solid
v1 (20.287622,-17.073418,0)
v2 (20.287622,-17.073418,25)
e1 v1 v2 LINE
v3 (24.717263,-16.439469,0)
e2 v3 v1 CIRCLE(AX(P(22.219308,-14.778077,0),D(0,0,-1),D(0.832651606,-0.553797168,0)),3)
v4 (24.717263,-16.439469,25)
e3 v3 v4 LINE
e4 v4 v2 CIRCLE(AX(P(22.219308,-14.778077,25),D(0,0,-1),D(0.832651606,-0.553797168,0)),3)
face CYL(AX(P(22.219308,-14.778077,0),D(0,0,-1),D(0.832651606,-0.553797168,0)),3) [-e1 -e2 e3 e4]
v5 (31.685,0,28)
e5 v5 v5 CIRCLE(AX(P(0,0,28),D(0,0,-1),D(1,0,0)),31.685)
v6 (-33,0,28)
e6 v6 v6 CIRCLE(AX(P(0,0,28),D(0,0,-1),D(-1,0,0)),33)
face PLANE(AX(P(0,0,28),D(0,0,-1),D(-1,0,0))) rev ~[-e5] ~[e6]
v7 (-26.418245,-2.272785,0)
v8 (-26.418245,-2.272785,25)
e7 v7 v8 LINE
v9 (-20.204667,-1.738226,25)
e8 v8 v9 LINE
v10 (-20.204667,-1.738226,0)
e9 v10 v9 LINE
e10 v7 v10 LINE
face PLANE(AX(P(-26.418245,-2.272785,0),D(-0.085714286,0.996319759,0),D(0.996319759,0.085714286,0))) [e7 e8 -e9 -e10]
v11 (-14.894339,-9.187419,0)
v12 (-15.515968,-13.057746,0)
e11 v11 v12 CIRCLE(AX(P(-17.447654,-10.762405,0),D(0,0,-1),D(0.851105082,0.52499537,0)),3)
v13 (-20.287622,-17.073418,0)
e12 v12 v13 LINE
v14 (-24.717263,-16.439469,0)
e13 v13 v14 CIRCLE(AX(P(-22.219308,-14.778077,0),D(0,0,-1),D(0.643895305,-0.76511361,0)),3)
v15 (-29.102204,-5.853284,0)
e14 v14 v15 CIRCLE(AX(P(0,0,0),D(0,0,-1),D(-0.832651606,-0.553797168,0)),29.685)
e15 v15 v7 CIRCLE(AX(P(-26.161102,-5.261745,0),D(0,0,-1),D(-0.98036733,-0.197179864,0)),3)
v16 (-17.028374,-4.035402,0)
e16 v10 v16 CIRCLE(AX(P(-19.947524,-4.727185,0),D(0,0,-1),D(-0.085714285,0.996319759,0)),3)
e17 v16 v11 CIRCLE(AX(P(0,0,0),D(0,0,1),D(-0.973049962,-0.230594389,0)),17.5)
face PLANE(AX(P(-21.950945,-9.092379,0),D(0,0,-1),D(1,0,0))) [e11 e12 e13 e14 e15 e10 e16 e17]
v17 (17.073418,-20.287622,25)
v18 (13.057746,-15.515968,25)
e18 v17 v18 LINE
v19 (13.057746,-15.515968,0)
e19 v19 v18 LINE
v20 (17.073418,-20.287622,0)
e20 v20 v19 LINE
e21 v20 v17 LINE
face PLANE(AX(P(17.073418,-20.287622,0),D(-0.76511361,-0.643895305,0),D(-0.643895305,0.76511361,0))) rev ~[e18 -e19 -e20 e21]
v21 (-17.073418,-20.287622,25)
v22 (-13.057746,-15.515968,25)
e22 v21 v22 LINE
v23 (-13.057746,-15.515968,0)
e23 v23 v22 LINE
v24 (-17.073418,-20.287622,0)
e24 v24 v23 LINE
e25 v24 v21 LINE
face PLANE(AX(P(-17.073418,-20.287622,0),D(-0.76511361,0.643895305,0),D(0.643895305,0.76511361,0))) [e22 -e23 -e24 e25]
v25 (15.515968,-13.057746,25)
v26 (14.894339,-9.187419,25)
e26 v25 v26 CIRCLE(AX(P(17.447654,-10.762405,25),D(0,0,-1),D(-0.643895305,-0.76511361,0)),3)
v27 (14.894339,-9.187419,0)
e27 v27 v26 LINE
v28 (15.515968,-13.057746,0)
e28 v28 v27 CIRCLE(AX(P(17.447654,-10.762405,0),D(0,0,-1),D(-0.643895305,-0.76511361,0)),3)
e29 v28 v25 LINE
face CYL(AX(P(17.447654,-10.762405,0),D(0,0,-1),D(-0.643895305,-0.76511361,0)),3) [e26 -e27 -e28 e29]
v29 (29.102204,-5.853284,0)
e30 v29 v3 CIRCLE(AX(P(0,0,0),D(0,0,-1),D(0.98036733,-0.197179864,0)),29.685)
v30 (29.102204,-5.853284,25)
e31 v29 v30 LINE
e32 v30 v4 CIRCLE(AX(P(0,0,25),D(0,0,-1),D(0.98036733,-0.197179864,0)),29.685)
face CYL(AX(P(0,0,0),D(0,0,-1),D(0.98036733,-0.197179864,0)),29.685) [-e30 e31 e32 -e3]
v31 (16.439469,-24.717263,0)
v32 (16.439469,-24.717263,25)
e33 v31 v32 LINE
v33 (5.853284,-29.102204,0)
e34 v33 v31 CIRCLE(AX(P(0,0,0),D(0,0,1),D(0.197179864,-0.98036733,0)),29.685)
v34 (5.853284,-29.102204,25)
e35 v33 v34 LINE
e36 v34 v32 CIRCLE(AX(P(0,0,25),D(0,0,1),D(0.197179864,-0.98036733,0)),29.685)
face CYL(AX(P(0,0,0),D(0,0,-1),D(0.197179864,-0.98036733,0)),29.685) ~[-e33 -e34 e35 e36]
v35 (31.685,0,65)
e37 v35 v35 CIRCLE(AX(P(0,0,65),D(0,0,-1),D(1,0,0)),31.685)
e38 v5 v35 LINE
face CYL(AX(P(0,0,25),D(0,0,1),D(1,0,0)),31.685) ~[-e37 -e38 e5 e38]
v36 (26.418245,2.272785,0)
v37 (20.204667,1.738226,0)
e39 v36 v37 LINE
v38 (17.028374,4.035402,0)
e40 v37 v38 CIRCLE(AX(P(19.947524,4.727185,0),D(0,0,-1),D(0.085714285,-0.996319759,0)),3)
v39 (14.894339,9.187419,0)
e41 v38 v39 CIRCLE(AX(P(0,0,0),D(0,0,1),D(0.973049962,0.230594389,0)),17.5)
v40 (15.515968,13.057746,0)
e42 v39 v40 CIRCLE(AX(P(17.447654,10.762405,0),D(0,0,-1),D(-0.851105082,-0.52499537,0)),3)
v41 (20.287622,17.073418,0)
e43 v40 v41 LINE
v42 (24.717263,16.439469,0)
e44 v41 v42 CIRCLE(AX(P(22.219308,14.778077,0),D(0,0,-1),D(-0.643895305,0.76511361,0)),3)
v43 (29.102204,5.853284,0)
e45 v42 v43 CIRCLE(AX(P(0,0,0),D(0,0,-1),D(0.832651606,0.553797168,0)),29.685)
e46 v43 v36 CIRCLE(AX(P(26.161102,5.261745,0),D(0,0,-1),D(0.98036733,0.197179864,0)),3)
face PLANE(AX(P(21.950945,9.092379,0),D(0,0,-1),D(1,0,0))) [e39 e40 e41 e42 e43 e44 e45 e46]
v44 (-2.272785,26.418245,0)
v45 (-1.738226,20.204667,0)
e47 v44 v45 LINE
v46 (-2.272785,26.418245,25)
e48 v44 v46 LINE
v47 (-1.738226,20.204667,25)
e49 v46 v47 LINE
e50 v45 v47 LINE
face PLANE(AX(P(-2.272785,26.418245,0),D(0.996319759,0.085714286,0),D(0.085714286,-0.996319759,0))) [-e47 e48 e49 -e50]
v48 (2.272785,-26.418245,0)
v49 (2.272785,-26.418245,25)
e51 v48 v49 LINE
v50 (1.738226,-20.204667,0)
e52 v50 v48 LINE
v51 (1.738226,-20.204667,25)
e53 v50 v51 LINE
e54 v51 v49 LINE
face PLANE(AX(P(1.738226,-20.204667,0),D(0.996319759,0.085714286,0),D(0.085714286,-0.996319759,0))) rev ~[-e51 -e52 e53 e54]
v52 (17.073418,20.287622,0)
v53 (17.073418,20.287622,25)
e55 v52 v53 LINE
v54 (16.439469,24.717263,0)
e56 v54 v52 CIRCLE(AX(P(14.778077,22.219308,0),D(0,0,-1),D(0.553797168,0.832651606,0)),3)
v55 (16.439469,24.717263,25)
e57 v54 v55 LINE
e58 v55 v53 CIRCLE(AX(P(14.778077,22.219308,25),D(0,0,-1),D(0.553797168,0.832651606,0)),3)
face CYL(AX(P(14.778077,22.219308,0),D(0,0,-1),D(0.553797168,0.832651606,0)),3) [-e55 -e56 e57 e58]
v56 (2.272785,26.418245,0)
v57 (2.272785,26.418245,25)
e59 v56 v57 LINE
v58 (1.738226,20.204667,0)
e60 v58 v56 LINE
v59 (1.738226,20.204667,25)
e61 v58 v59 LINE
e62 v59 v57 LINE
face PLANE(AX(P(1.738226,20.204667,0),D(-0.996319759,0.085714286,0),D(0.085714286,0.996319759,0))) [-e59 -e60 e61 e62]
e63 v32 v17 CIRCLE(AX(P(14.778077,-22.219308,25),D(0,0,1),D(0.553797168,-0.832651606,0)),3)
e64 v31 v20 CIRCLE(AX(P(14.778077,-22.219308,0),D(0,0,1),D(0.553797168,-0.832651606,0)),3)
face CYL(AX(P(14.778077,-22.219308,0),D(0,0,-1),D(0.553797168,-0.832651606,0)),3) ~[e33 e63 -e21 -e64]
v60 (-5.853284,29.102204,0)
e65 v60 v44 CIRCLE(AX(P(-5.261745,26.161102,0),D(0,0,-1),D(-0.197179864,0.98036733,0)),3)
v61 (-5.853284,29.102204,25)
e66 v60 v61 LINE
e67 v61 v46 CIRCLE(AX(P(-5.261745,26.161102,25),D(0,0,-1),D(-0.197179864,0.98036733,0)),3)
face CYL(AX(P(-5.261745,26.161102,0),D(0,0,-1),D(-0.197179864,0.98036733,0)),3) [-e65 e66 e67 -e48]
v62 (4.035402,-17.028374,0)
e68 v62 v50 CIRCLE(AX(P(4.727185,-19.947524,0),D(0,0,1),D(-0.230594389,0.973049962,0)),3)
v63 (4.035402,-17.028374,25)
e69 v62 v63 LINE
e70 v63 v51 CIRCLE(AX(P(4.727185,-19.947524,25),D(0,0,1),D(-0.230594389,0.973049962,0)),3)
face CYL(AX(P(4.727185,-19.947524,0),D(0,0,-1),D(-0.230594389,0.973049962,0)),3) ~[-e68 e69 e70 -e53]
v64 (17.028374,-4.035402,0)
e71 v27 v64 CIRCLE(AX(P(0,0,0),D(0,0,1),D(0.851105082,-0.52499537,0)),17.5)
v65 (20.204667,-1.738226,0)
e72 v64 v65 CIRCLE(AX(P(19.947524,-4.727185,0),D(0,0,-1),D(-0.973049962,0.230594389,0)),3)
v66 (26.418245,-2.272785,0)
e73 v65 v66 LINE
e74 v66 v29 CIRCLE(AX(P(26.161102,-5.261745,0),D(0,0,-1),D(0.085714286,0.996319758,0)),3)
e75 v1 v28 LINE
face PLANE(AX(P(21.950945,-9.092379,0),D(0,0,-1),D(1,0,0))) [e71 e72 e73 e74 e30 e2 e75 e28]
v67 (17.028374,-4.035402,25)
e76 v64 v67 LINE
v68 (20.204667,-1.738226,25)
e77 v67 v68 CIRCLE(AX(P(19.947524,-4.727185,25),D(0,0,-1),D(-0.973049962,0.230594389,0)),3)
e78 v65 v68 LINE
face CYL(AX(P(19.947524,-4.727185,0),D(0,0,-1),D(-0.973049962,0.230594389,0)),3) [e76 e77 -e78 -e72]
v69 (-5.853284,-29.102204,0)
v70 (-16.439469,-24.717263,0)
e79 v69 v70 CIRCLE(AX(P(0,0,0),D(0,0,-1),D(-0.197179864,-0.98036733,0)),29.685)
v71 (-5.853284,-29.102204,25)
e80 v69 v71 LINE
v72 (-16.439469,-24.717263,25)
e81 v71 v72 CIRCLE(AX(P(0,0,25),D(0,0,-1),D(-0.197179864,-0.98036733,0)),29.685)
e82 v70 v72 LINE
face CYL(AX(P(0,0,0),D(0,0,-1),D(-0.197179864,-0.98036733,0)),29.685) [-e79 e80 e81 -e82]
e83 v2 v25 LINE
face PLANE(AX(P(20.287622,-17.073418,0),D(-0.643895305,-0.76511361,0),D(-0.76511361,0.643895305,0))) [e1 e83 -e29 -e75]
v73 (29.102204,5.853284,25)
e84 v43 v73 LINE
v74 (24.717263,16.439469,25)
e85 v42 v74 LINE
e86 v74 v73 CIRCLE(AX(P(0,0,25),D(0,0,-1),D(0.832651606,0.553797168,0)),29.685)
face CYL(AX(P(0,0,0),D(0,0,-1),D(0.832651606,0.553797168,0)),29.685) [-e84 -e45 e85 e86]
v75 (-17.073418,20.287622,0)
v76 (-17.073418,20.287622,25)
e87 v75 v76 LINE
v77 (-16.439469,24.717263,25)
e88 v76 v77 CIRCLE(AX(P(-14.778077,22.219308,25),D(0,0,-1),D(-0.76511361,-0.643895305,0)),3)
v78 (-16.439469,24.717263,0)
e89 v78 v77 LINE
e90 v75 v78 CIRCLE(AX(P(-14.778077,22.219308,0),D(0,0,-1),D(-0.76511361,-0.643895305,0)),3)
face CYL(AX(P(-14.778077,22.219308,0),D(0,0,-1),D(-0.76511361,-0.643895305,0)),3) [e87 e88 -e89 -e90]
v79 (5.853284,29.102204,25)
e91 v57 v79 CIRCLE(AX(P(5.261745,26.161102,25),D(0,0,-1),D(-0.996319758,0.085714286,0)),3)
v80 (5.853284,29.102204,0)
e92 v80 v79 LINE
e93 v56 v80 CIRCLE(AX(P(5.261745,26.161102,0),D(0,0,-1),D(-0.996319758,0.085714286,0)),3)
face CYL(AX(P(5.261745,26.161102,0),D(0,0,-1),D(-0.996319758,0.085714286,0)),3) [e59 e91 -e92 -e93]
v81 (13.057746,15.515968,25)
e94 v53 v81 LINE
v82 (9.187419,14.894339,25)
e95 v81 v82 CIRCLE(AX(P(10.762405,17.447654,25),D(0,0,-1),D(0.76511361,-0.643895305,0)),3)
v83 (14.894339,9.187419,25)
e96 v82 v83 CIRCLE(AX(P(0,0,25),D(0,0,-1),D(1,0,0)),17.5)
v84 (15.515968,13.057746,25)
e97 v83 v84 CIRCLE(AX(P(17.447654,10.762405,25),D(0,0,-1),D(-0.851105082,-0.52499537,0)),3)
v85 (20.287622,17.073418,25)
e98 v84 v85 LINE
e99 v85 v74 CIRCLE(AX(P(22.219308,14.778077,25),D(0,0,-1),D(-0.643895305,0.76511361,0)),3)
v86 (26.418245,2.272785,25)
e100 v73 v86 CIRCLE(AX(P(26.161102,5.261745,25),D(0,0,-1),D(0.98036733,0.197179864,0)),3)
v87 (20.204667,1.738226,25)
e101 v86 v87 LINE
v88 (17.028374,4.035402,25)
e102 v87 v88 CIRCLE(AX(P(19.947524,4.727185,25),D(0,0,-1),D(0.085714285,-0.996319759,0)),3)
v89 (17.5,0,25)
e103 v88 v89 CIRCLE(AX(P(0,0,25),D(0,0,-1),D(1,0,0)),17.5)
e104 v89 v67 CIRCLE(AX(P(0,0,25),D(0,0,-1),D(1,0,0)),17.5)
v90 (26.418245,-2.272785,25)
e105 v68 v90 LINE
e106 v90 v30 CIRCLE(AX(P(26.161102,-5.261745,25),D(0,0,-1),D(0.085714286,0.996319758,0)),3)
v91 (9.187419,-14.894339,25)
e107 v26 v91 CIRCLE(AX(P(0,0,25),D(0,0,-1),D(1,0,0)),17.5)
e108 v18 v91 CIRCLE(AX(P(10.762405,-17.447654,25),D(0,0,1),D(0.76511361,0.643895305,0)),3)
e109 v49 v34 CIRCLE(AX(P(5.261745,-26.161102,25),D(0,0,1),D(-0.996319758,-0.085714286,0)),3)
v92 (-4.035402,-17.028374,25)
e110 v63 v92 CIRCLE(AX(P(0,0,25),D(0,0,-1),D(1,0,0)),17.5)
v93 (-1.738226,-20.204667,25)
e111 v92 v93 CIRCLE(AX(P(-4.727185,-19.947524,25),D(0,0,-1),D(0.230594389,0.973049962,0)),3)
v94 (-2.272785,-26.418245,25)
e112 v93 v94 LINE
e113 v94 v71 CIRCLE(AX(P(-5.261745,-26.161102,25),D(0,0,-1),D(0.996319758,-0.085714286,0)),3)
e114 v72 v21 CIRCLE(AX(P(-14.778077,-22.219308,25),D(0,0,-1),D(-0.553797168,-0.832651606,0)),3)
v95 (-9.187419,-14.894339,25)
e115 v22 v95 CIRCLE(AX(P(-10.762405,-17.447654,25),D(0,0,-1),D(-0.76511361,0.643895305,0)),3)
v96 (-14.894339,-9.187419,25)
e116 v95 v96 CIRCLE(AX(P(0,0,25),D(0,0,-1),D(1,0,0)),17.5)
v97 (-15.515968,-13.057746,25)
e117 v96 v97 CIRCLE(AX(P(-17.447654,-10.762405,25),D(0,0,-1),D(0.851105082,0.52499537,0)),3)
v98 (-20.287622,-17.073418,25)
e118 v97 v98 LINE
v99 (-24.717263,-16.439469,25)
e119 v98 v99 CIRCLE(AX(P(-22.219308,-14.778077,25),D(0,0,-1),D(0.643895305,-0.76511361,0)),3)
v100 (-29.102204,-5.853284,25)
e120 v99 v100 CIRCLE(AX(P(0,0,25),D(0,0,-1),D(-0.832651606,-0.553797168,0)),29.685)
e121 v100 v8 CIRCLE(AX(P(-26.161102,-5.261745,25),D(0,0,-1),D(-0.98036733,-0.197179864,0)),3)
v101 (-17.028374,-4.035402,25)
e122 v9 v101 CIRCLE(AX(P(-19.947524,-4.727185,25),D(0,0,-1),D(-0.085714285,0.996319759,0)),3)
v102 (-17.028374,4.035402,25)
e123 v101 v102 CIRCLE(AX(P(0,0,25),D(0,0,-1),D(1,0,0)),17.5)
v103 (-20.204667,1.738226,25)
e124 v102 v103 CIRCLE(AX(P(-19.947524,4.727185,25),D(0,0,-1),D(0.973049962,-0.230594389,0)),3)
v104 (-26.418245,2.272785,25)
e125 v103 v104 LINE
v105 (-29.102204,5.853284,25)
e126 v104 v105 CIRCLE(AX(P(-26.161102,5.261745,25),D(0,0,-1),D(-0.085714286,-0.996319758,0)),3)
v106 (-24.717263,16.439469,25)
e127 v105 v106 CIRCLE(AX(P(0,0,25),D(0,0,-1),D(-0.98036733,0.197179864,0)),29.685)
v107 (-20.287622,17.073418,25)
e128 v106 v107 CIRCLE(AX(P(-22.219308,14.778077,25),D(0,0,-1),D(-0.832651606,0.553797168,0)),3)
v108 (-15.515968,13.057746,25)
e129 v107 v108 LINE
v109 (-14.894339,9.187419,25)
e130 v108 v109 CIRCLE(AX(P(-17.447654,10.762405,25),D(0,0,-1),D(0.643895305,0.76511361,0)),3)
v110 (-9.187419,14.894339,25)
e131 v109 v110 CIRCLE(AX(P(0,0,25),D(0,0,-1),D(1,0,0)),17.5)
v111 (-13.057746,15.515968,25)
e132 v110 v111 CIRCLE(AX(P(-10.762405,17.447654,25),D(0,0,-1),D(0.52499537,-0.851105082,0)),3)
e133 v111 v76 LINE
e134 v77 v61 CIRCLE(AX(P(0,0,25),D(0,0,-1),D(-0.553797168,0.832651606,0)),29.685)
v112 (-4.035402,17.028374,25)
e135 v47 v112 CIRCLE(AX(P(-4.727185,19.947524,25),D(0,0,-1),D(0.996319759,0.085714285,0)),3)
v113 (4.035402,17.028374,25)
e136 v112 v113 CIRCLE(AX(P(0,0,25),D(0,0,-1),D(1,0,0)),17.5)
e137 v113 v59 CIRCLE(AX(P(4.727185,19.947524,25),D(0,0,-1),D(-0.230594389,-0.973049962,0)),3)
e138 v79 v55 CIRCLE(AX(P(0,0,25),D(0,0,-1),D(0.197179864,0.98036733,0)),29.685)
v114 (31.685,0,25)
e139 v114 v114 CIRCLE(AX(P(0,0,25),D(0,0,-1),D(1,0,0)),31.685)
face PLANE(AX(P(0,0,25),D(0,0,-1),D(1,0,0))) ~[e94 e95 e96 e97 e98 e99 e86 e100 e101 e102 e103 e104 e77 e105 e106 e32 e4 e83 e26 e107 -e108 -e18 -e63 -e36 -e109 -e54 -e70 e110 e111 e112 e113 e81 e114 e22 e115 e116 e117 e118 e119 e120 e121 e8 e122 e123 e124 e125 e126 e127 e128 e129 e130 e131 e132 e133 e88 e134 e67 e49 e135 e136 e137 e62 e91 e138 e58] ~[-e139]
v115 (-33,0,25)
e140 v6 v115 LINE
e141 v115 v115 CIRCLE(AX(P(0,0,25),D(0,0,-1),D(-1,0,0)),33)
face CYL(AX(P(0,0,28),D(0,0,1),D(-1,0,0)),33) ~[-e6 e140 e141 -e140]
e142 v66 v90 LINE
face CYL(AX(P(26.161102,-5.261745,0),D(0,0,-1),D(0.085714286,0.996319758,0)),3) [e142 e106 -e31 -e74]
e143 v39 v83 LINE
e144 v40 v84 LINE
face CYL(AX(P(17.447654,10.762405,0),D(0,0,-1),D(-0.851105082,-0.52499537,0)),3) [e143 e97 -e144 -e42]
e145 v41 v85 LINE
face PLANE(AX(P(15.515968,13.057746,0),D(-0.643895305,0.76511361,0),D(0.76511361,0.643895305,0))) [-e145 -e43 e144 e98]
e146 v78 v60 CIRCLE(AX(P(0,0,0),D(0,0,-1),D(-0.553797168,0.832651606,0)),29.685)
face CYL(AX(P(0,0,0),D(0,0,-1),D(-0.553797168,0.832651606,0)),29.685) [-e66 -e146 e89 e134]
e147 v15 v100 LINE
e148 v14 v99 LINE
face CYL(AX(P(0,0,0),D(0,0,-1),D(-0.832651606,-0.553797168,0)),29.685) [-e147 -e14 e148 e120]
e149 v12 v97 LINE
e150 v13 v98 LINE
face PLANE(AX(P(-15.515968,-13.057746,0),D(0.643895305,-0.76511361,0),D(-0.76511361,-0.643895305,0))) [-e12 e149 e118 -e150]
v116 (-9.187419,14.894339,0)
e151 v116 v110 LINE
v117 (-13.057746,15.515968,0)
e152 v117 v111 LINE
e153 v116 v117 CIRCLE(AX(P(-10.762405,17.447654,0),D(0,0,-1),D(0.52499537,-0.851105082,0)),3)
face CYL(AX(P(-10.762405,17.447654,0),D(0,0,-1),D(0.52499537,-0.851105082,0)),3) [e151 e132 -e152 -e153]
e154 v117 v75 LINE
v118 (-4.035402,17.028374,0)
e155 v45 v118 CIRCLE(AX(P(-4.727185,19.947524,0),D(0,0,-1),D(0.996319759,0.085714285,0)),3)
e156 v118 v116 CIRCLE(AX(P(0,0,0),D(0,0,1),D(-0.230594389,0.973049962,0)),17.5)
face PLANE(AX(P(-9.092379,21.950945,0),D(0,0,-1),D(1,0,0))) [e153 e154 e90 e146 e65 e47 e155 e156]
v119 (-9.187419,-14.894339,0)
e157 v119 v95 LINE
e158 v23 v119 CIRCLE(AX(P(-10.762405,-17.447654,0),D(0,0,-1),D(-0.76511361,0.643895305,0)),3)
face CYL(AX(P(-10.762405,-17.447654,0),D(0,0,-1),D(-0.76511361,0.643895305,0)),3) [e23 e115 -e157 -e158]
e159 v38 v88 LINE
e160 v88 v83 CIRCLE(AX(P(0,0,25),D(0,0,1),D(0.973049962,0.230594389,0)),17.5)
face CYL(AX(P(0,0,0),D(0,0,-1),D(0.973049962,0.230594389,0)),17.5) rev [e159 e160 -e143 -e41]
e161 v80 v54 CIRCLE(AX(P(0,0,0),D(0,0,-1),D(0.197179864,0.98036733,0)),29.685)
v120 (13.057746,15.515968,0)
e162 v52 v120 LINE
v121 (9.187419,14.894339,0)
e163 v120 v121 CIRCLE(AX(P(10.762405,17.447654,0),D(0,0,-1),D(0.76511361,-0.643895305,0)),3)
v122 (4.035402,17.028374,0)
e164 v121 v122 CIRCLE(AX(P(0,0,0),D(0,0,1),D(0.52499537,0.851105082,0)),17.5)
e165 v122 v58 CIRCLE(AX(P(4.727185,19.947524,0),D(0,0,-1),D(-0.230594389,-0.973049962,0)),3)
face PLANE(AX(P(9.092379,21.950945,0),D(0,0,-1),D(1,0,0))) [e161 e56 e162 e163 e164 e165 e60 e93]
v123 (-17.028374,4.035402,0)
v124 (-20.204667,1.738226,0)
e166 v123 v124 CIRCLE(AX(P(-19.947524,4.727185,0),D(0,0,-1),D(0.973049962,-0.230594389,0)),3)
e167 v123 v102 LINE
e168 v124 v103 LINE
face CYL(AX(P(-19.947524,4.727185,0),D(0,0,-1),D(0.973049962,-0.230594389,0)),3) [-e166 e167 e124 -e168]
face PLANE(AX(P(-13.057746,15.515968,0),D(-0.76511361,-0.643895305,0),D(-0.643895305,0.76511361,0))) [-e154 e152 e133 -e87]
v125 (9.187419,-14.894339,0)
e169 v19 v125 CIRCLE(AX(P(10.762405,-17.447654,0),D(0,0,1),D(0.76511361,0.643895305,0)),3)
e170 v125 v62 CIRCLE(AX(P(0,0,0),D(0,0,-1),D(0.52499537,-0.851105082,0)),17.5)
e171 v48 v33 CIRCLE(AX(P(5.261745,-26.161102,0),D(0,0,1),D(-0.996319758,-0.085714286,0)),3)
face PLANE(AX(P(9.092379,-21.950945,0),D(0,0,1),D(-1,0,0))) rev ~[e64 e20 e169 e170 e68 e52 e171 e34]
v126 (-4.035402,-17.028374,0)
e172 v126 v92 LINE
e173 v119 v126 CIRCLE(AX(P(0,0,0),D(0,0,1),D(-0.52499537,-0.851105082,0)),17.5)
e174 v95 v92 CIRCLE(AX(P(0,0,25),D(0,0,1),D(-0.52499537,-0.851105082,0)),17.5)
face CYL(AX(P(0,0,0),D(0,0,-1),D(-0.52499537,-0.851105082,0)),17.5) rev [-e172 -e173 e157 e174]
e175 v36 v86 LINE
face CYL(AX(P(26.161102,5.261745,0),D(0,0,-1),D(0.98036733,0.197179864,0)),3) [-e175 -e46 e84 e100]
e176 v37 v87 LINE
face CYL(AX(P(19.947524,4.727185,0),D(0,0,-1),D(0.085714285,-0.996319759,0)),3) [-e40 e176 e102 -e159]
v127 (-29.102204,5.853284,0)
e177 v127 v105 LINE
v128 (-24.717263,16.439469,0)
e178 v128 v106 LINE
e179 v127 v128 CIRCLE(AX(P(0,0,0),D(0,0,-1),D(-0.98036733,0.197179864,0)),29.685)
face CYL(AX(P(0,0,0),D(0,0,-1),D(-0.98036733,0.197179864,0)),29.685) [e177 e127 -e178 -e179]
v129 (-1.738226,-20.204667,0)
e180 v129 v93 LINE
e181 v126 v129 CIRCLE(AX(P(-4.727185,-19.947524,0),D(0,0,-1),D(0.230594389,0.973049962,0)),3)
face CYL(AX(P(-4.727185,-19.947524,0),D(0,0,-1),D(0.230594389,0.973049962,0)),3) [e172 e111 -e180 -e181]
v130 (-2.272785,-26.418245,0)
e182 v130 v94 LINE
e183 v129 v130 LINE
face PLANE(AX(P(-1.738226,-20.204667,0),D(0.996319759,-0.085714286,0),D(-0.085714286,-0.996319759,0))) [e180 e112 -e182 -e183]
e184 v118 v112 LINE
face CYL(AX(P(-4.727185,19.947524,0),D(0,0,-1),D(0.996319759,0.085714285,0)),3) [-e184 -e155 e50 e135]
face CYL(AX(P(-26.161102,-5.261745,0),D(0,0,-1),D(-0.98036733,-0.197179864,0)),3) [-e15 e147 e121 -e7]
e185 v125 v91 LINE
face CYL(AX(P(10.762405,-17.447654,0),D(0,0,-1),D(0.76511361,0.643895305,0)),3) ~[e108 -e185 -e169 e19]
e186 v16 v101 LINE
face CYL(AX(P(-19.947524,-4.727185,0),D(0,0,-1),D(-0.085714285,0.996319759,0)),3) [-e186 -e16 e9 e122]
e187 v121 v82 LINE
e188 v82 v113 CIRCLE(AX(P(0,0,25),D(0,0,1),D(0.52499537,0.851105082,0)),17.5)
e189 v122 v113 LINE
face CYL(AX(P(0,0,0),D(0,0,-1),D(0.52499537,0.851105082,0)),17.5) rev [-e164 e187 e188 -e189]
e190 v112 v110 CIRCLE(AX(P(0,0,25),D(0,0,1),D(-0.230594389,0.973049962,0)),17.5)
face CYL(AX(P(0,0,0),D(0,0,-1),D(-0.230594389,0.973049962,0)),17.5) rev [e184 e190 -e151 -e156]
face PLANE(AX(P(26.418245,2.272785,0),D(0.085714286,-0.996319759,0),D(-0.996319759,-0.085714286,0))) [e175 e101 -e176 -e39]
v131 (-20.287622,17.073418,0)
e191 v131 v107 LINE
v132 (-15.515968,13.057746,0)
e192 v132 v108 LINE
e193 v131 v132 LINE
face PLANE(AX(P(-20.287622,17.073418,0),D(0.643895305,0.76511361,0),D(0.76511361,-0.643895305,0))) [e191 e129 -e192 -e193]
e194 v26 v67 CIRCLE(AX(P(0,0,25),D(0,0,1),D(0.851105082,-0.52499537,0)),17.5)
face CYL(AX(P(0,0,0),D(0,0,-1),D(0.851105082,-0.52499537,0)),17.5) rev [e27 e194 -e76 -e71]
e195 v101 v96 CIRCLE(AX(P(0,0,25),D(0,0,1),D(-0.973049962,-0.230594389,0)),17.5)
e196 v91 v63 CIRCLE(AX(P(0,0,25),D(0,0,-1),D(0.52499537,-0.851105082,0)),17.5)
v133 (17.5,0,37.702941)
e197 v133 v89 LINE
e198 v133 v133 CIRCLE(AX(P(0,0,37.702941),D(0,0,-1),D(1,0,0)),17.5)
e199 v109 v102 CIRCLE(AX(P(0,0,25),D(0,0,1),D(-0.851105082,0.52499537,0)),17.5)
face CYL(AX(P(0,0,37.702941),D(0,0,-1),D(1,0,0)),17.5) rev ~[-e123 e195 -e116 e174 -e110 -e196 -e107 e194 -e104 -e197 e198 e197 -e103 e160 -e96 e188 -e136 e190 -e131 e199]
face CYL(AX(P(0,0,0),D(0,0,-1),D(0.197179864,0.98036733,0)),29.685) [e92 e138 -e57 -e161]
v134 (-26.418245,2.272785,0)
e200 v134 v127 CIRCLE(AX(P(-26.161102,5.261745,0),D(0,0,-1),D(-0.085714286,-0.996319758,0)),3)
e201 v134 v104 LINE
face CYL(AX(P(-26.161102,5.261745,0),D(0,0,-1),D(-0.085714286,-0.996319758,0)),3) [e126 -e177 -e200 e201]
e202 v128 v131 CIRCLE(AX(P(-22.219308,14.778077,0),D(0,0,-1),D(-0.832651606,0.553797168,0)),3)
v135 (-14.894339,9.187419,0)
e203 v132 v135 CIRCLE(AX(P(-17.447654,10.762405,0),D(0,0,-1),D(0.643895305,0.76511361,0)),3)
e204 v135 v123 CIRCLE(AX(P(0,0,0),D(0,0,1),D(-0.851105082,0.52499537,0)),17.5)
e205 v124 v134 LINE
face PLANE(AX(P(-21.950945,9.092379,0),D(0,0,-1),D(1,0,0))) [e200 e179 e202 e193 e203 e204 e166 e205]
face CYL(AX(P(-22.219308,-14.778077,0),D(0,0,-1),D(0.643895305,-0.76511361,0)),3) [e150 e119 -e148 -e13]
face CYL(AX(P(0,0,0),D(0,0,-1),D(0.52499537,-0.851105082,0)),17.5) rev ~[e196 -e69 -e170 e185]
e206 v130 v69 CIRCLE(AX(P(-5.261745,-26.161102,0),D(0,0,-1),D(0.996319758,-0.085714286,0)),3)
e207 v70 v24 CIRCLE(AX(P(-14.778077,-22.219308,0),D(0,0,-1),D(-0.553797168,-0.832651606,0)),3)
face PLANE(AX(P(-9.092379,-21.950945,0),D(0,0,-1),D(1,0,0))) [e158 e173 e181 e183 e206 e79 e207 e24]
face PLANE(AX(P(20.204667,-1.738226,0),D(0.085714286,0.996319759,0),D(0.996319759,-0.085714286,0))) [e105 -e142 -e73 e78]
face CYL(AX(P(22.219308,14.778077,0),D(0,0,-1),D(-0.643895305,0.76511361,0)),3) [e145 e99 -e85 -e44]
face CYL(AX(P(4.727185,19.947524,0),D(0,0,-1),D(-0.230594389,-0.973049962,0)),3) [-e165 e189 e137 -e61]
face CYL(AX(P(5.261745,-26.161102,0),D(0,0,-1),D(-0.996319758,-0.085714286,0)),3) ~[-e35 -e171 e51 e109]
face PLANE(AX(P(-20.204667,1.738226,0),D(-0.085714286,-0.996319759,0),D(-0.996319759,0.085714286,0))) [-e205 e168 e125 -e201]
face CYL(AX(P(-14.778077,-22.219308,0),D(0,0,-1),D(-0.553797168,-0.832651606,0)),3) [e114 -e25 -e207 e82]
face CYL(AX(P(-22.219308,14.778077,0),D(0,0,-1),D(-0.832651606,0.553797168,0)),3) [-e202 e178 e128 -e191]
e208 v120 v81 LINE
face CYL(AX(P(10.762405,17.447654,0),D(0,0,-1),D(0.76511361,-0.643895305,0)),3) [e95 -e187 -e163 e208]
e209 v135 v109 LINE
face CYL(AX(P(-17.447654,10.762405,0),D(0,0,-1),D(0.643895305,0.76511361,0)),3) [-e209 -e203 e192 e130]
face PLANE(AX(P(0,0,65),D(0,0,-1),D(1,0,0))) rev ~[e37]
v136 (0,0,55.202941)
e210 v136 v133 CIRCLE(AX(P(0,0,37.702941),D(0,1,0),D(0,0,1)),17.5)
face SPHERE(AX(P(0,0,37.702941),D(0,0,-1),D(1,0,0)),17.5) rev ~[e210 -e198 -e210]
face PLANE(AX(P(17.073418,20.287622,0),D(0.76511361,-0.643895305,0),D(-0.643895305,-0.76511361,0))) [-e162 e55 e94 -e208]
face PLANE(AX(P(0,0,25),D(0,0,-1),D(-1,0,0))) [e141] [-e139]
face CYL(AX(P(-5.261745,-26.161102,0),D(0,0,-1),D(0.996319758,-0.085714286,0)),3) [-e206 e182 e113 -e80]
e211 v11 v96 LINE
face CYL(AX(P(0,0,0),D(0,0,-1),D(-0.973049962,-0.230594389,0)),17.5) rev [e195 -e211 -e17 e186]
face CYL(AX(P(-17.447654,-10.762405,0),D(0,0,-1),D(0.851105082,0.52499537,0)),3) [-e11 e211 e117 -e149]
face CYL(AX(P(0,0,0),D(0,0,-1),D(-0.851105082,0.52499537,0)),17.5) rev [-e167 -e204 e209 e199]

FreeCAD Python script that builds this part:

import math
import FreeCAD as App
import Part
import Sketcher

doc = App.newDocument("Part")
params = doc.addObject("Spreadsheet::Sheet", "Params")
for row, (alias, value) in enumerate([
    ("sketch1_radius", "3 mm"),
    ("sketch1_radius2", "17.5 mm"),
    ("pad1_length", "25 mm"),
    ("sketch2_radius", "3 mm"),
    ("sketch2_radius2", "17.5 mm"),
    ("pad2_length", "25 mm"),
    ("sketch3_radius", "3 mm"),
    ("sketch3_radius2", "17.5 mm"),
    ("pad3_length", "25 mm"),
    ("sketch4_radius", "3 mm"),
    ("sketch4_radius2", "17.5 mm"),
    ("pad4_length", "25 mm"),
    ("sketch5_radius", "3 mm"),
    ("sketch5_radius2", "17.5 mm"),
    ("pad5_length", "25 mm"),
    ("sketch6_radius", "3 mm"),
    ("sketch6_radius2", "17.5 mm"),
    ("pad6_length", "25 mm"),
    ("sketch7_radius", "3 mm"),
    ("sketch7_radius2", "17.5 mm"),
    ("pad7_length", "25 mm"),
    ("sketch8_radius", "3 mm"),
    ("sketch8_radius2", "17.5 mm"),
    ("pad8_length", "25 mm"),
    ("sketch9_radius", "17.5 mm"),
    ("sketch9_height", "40 mm"),
    ("revolution_angle", "360 deg"),
    ("sketch10_diameter", "66 mm"),
    ("sketch10_diameter2", "63.37 mm"),
    ("pad9_length", "3 mm"),
], start=1):
    params.set(f"A{row}", alias)
    params.set(f"B{row}", "=" + value)
    params.setAlias(f"B{row}", alias)

body = doc.addObject("PartDesign::Body", "Body")

# Sketch on XY plane
sketch1 = body.newObject("Sketcher::SketchObject", "Sketch")
sketch1.AttachmentSupport = (doc.getObject("XY_Plane"), [""])
sketch1.MapMode = "FlatFace"
sketch1.addGeometry([
    Part.LineSegment(App.Vector(1.7, -20.2, 0), App.Vector(2.3, -26.4, 0)),  # 0
    Part.ArcOfCircle(Part.Circle(App.Vector(5.3, -26.2, 0), App.Vector(0, 0, 1), 3), math.radians(-175), math.radians(-79)),  # 1
    Part.ArcOfCircle(Part.Circle(App.Vector(0, 0, 0), App.Vector(0, 0, 1), 29.7), math.radians(-79), math.radians(-56)),  # 2
    Part.ArcOfCircle(Part.Circle(App.Vector(14.8, -22.2, 0), App.Vector(0, 0, 1), 3), math.radians(-56), math.radians(40)),  # 3
    Part.LineSegment(App.Vector(17.1, -20.3, 0), App.Vector(13.1, -15.5, 0)),  # 4
    Part.ArcOfCircle(Part.Circle(App.Vector(10.8, -17.4, 0), App.Vector(0, 0, 1), 3), math.radians(40), math.radians(122)),  # 5
    Part.ArcOfCircle(Part.Circle(App.Vector(0, 0, 0), App.Vector(0, 0, 1), 17.5), math.radians(-76.67), math.radians(-58.33)),  # 6
    Part.ArcOfCircle(Part.Circle(App.Vector(4.7, -19.9, 0), App.Vector(0, 0, 1), 3), math.radians(103), math.radians(185)),  # 7
], False)
sketch1.addConstraint([
    Sketcher.Constraint("Tangent", 0, 2, 1, 1),
    Sketcher.Constraint("Tangent", 1, 2, 2, 1),
    Sketcher.Constraint("Tangent", 2, 2, 3, 1),
    Sketcher.Constraint("Tangent", 3, 2, 4, 1),
    Sketcher.Constraint("Tangent", 4, 2, 5, 1),
    Sketcher.Constraint("Tangent", 5, 2, 6, 2),
    Sketcher.Constraint("Tangent", 6, 1, 7, 1),
    Sketcher.Constraint("Tangent", 7, 2, 0, 1),
    Sketcher.Constraint("Coincident", 2, 3, -1, 1),
    Sketcher.Constraint("Coincident", 6, 3, -1, 1),
    Sketcher.Constraint("Equal", 1, 3),
    Sketcher.Constraint("Equal", 3, 5),
    Sketcher.Constraint("Equal", 5, 7),
    Sketcher.Constraint("Equal", 0, 4),
    Sketcher.Constraint("Radius", 1, 3.0),
    Sketcher.Constraint("Radius", 6, 17.5),
    Sketcher.Constraint("Radius", 2, 29.685),
    Sketcher.Constraint("DistanceX", 5, 2, 3, 2, 7.885999),
    Sketcher.Constraint("DistanceX", -1, 1, 6, 1, 4.035402),
    Sketcher.Constraint("DistanceX", 0, 2, 7, 3, 2.4544),
])
sketch1.setExpression("Constraints[14]", "Params.sketch1_radius")
sketch1.setExpression("Constraints[15]", "Params.sketch1_radius2")
pad1 = body.newObject("PartDesign::Pad", "Pad")
pad1.Profile = sketch1
pad1.setExpression("Length", "Params.pad1_length")
body2 = doc.addObject("PartDesign::Body", "Body001")

# Sketch on XY plane
sketch2 = body2.newObject("Sketcher::SketchObject", "Sketch001")
sketch2.AttachmentSupport = (doc.getObject("XY_Plane001"), [""])
sketch2.MapMode = "FlatFace"
sketch2.addGeometry([
    Part.LineSegment(App.Vector(-2.3, -26.4, 0), App.Vector(-1.7, -20.2, 0)),  # 0
    Part.ArcOfCircle(Part.Circle(App.Vector(-4.7, -19.9, 0), App.Vector(0, 0, 1), 3), math.radians(-5), math.radians(77)),  # 1
    Part.ArcOfCircle(Part.Circle(App.Vector(0, 0, 0), App.Vector(0, 0, 1), 17.5), math.radians(-121.67), math.radians(-103.33)),  # 2
    Part.ArcOfCircle(Part.Circle(App.Vector(-10.8, -17.4, 0), App.Vector(0, 0, 1), 3), math.radians(58), math.radians(140)),  # 3
    Part.LineSegment(App.Vector(-13.1, -15.5, 0), App.Vector(-17.1, -20.3, 0)),  # 4
    Part.ArcOfCircle(Part.Circle(App.Vector(-14.8, -22.2, 0), App.Vector(0, 0, 1), 3), math.radians(140), math.radians(236)),  # 5
    Part.ArcOfCircle(Part.Circle(App.Vector(0, 0, 0), App.Vector(0, 0, 1), 29.7), math.radians(-124), math.radians(-101)),  # 6
    Part.ArcOfCircle(Part.Circle(App.Vector(-5.3, -26.2, 0), App.Vector(0, 0, 1), 3), math.radians(-101), math.radians(-5)),  # 7
], False)
sketch2.addConstraint([
    Sketcher.Constraint("Tangent", 0, 2, 1, 1),
    Sketcher.Constraint("Tangent", 1, 2, 2, 2),
    Sketcher.Constraint("Tangent", 2, 1, 3, 1),
    Sketcher.Constraint("Tangent", 3, 2, 4, 1),
    Sketcher.Constraint("Tangent", 4, 2, 5, 1),
    Sketcher.Constraint("Tangent", 5, 2, 6, 1),
    Sketcher.Constraint("Tangent", 6, 2, 7, 1),
    Sketcher.Constraint("Tangent", 7, 2, 0, 1),
    Sketcher.Constraint("Coincident", 2, 3, -1, 1),
    Sketcher.Constraint("Coincident", 6, 3, -1, 1),
    Sketcher.Constraint("Equal", 1, 3),
    Sketcher.Constraint("Equal", 3, 5),
    Sketcher.Constraint("Equal", 5, 7),
    Sketcher.Constraint("Equal", 0, 4),
    Sketcher.Constraint("Radius", 1, 3.0),
    Sketcher.Constraint("Radius", 2, 17.5),
    Sketcher.Constraint("Radius", 6, 29.685),
    Sketcher.Constraint("DistanceX", 4, 2, 2, 1, 7.885999),
    Sketcher.Constraint("DistanceX", 1, 2, -1, 1, 4.035402),
    Sketcher.Constraint("DistanceX", 6, 2, 1, 3, 1.126099),
])
sketch2.setExpression("Constraints[14]", "Params.sketch2_radius")
sketch2.setExpression("Constraints[15]", "Params.sketch2_radius2")
pad2 = body2.newObject("PartDesign::Pad", "Pad001")
pad2.Profile = sketch2
pad2.setExpression("Length", "Params.pad2_length")
body3 = doc.addObject("PartDesign::Body", "Body002")

# Sketch on XY plane
sketch3 = body3.newObject("Sketcher::SketchObject", "Sketch002")
sketch3.AttachmentSupport = (doc.getObject("XY_Plane002"), [""])
sketch3.MapMode = "FlatFace"
sketch3.addGeometry([
    Part.LineSegment(App.Vector(-20.3, -17.1, 0), App.Vector(-15.5, -13.1, 0)),  # 0
    Part.ArcOfCircle(Part.Circle(App.Vector(-17.4, -10.8, 0), App.Vector(0, 0, 1), 3), math.radians(-50), math.radians(32)),  # 1
    Part.ArcOfCircle(Part.Circle(App.Vector(0, 0, 0), App.Vector(0, 0, 1), 17.5), math.radians(-166.67), math.radians(-148.33)),  # 2
    Part.ArcOfCircle(Part.Circle(App.Vector(-19.9, -4.7, 0), App.Vector(0, 0, 1), 3), math.radians(13), math.radians(95)),  # 3
    Part.LineSegment(App.Vector(-20.2, -1.7, 0), App.Vector(-26.4, -2.3, 0)),  # 4
    Part.ArcOfCircle(Part.Circle(App.Vector(-26.2, -5.3, 0), App.Vector(0, 0, 1), 3), math.radians(95), math.radians(191)),  # 5
    Part.ArcOfCircle(Part.Circle(App.Vector(0, 0, 0), App.Vector(0, 0, 1), 29.7), math.radians(-169), math.radians(-146)),  # 6
    Part.ArcOfCircle(Part.Circle(App.Vector(-22.2, -14.8, 0), App.Vector(0, 0, 1), 3), math.radians(-146), math.radians(-50)),  # 7
], False)
sketch3.addConstraint([
    Sketcher.Constraint("Tangent", 0, 2, 1, 1),
    Sketcher.Constraint("Tangent", 1, 2, 2, 2),
    Sketcher.Constraint("Tangent", 2, 1, 3, 1),
    Sketcher.Constraint("Tangent", 3, 2, 4, 1),
    Sketcher.Constraint("Tangent", 4, 2, 5, 1),
    Sketcher.Constraint("Tangent", 5, 2, 6, 1),
    Sketcher.Constraint("Tangent", 6, 2, 7, 1),
    Sketcher.Constraint("Tangent", 7, 2, 0, 1),
    Sketcher.Constraint("Coincident", 2, 3, -1, 1),
    Sketcher.Constraint("Coincident", 6, 3, -1, 1),
    Sketcher.Constraint("Equal", 1, 3),
    Sketcher.Constraint("Equal", 3, 5),
    Sketcher.Constraint("Equal", 5, 7),
    Sketcher.Constraint("Equal", 0, 4),
    Sketcher.Constraint("Radius", 1, 3.0),
    Sketcher.Constraint("Radius", 2, 17.5),
    Sketcher.Constraint("Radius", 6, 29.685),
    Sketcher.Constraint("DistanceY", 0, 2, 5, 3, 7.796001),
    Sketcher.Constraint("DistanceY", 7, 2, 1, 2, 7.885999),
    Sketcher.Constraint("DistanceY", 2, 1, -1, 1, 4.035402),
])
sketch3.setExpression("Constraints[14]", "Params.sketch3_radius")
sketch3.setExpression("Constraints[15]", "Params.sketch3_radius2")
pad3 = body3.newObject("PartDesign::Pad", "Pad002")
pad3.Profile = sketch3
pad3.setExpression("Length", "Params.pad3_length")
body4 = doc.addObject("PartDesign::Body", "Body003")

# Sketch on XY plane
sketch4 = body4.newObject("Sketcher::SketchObject", "Sketch003")
sketch4.AttachmentSupport = (doc.getObject("XY_Plane003"), [""])
sketch4.MapMode = "FlatFace"
sketch4.addGeometry([
    Part.LineSegment(App.Vector(-26.4, 2.3, 0), App.Vector(-20.2, 1.7, 0)),  # 0
    Part.ArcOfCircle(Part.Circle(App.Vector(-19.9, 4.7, 0), App.Vector(0, 0, 1), 3), math.radians(-95), math.radians(-13)),  # 1
    Part.ArcOfCircle(Part.Circle(App.Vector(0, 0, 0), App.Vector(0, 0, 1), 17.5), math.radians(148.33), math.radians(166.67)),  # 2
    Part.ArcOfCircle(Part.Circle(App.Vector(-17.4, 10.8, 0), App.Vector(0, 0, 1), 3), math.radians(-32), math.radians(50)),  # 3
    Part.LineSegment(App.Vector(-15.5, 13.1, 0), App.Vector(-20.3, 17.1, 0)),  # 4
    Part.ArcOfCircle(Part.Circle(App.Vector(-22.2, 14.8, 0), App.Vector(0, 0, 1), 3), math.radians(50), math.radians(146)),  # 5
    Part.ArcOfCircle(Part.Circle(App.Vector(0, 0, 0), App.Vector(0, 0, 1), 29.7), math.radians(146), math.radians(169)),  # 6
    Part.ArcOfCircle(Part.Circle(App.Vector(-26.2, 5.3, 0), App.Vector(0, 0, 1), 3), math.radians(169), math.radians(265)),  # 7
], False)
sketch4.addConstraint([
    Sketcher.Constraint("Tangent", 0, 2, 1, 1),
    Sketcher.Constraint("Tangent", 1, 2, 2, 2),
    Sketcher.Constraint("Tangent", 2, 1, 3, 1),
    Sketcher.Constraint("Tangent", 3, 2, 4, 1),
    Sketcher.Constraint("Tangent", 4, 2, 5, 1),
    Sketcher.Constraint("Tangent", 5, 2, 6, 1),
    Sketcher.Constraint("Tangent", 6, 2, 7, 1),
    Sketcher.Constraint("Tangent", 7, 2, 0, 1),
    Sketcher.Constraint("Coincident", 2, 3, -1, 1),
    Sketcher.Constraint("Coincident", 6, 3, -1, 1),
    Sketcher.Constraint("Equal", 1, 3),
    Sketcher.Constraint("Equal", 3, 5),
    Sketcher.Constraint("Equal", 5, 7),
    Sketcher.Constraint("Equal", 0, 4),
    Sketcher.Constraint("Radius", 1, 3.0),
    Sketcher.Constraint("Radius", 2, 17.5),
    Sketcher.Constraint("Radius", 6, 29.685),
    Sketcher.Constraint("DistanceY", 2, 1, 4, 2, 7.885999),
    Sketcher.Constraint("DistanceY", -1, 1, 1, 2, 4.035402),
    Sketcher.Constraint("DistanceY", 1, 3, 6, 2, 1.126099),
])
sketch4.setExpression("Constraints[14]", "Params.sketch4_radius")
sketch4.setExpression("Constraints[15]", "Params.sketch4_radius2")
pad4 = body4.newObject("PartDesign::Pad", "Pad003")
pad4.Profile = sketch4
pad4.setExpression("Length", "Params.pad4_length")
body5 = doc.addObject("PartDesign::Body", "Body004")

# Sketch on XY plane
sketch5 = body5.newObject("Sketcher::SketchObject", "Sketch004")
sketch5.AttachmentSupport = (doc.getObject("XY_Plane004"), [""])
sketch5.MapMode = "FlatFace"
sketch5.addGeometry([
    Part.LineSegment(App.Vector(-17.1, 20.3, 0), App.Vector(-13.1, 15.5, 0)),  # 0
    Part.ArcOfCircle(Part.Circle(App.Vector(-10.8, 17.4, 0), App.Vector(0, 0, 1), 3), math.radians(-140), math.radians(-58)),  # 1
    Part.ArcOfCircle(Part.Circle(App.Vector(0, 0, 0), App.Vector(0, 0, 1), 17.5), math.radians(103.33), math.radians(121.67)),  # 2
    Part.ArcOfCircle(Part.Circle(App.Vector(-4.7, 19.9, 0), App.Vector(0, 0, 1), 3), math.radians(-77), math.radians(5)),  # 3
    Part.LineSegment(App.Vector(-1.7, 20.2, 0), App.Vector(-2.3, 26.4, 0)),  # 4
    Part.ArcOfCircle(Part.Circle(App.Vector(-5.3, 26.2, 0), App.Vector(0, 0, 1), 3), math.radians(5), math.radians(101)),  # 5
    Part.ArcOfCircle(Part.Circle(App.Vector(0, 0, 0), App.Vector(0, 0, 1), 29.7), math.radians(101), math.radians(124)),  # 6
    Part.ArcOfCircle(Part.Circle(App.Vector(-14.8, 22.2, 0), App.Vector(0, 0, 1), 3), math.radians(124), math.radians(220)),  # 7
], False)
sketch5.addConstraint([
    Sketcher.Constraint("Tangent", 0, 2, 1, 1),
    Sketcher.Constraint("Tangent", 1, 2, 2, 2),
    Sketcher.Constraint("Tangent", 2, 1, 3, 1),
    Sketcher.Constraint("Tangent", 3, 2, 4, 1),
    Sketcher.Constraint("Tangent", 4, 2, 5, 1),
    Sketcher.Constraint("Tangent", 5, 2, 6, 1),
    Sketcher.Constraint("Tangent", 6, 2, 7, 1),
    Sketcher.Constraint("Tangent", 7, 2, 0, 1),
    Sketcher.Constraint("Coincident", 2, 3, -1, 1),
    Sketcher.Constraint("Coincident", 6, 3, -1, 1),
    Sketcher.Constraint("Equal", 1, 3),
    Sketcher.Constraint("Equal", 3, 5),
    Sketcher.Constraint("Equal", 5, 7),
    Sketcher.Constraint("Equal", 0, 4),
    Sketcher.Constraint("Radius", 1, 3.0),
    Sketcher.Constraint("Radius", 2, 17.5),
    Sketcher.Constraint("Radius", 6, 29.685),
    Sketcher.Constraint("DistanceX", 0, 2, 5, 3, 7.796001),
    Sketcher.Constraint("DistanceX", 7, 2, 1, 2, 7.885999),
    Sketcher.Constraint("DistanceX", 2, 1, -1, 1, 4.035402),
])
sketch5.setExpression("Constraints[14]", "Params.sketch5_radius")
sketch5.setExpression("Constraints[15]", "Params.sketch5_radius2")
pad5 = body5.newObject("PartDesign::Pad", "Pad004")
pad5.Profile = sketch5
pad5.setExpression("Length", "Params.pad5_length")
body6 = doc.addObject("PartDesign::Body", "Body005")

# Sketch on XY plane
sketch6 = body6.newObject("Sketcher::SketchObject", "Sketch005")
sketch6.AttachmentSupport = (doc.getObject("XY_Plane005"), [""])
sketch6.MapMode = "FlatFace"
sketch6.addGeometry([
    Part.LineSegment(App.Vector(2.3, 26.4, 0), App.Vector(1.7, 20.2, 0)),  # 0
    Part.ArcOfCircle(Part.Circle(App.Vector(4.7, 19.9, 0), App.Vector(0, 0, 1), 3), math.radians(175), math.radians(257)),  # 1
    Part.ArcOfCircle(Part.Circle(App.Vector(0, 0, 0), App.Vector(0, 0, 1), 17.5), math.radians(58.33), math.radians(76.67)),  # 2
    Part.ArcOfCircle(Part.Circle(App.Vector(10.8, 17.4, 0), App.Vector(0, 0, 1), 3), math.radians(-122), math.radians(-40)),  # 3
    Part.LineSegment(App.Vector(13.1, 15.5, 0), App.Vector(17.1, 20.3, 0)),  # 4
    Part.ArcOfCircle(Part.Circle(App.Vector(14.8, 22.2, 0), App.Vector(0, 0, 1), 3), math.radians(-40), math.radians(56)),  # 5
    Part.ArcOfCircle(Part.Circle(App.Vector(0, 0, 0), App.Vector(0, 0, 1), 29.7), math.radians(56), math.radians(79)),  # 6
    Part.ArcOfCircle(Part.Circle(App.Vector(5.3, 26.2, 0), App.Vector(0, 0, 1), 3), math.radians(79), math.radians(175)),  # 7
], False)
sketch6.addConstraint([
    Sketcher.Constraint("Tangent", 0, 2, 1, 1),
    Sketcher.Constraint("Tangent", 1, 2, 2, 2),
    Sketcher.Constraint("Tangent", 2, 1, 3, 1),
    Sketcher.Constraint("Tangent", 3, 2, 4, 1),
    Sketcher.Constraint("Tangent", 4, 2, 5, 1),
    Sketcher.Constraint("Tangent", 5, 2, 6, 1),
    Sketcher.Constraint("Tangent", 6, 2, 7, 1),
    Sketcher.Constraint("Tangent", 7, 2, 0, 1),
    Sketcher.Constraint("Coincident", 2, 3, -1, 1),
    Sketcher.Constraint("Coincident", 6, 3, -1, 1),
    Sketcher.Constraint("Equal", 1, 3),
    Sketcher.Constraint("Equal", 3, 5),
    Sketcher.Constraint("Equal", 5, 7),
    Sketcher.Constraint("Equal", 0, 4),
    Sketcher.Constraint("Radius", 1, 3.0),
    Sketcher.Constraint("Radius", 2, 17.5),
    Sketcher.Constraint("Radius", 6, 29.685),
    Sketcher.Constraint("DistanceX", 2, 1, 4, 2, 7.885999),
    Sketcher.Constraint("DistanceX", -1, 1, 1, 2, 4.035402),
    Sketcher.Constraint("DistanceX", 1, 3, 6, 2, 1.126099),
])
sketch6.setExpression("Constraints[14]", "Params.sketch6_radius")
sketch6.setExpression("Constraints[15]", "Params.sketch6_radius2")
pad6 = body6.newObject("PartDesign::Pad", "Pad005")
pad6.Profile = sketch6
pad6.setExpression("Length", "Params.pad6_length")
body7 = doc.addObject("PartDesign::Body", "Body006")

# Sketch on XY plane
sketch7 = body7.newObject("Sketcher::SketchObject", "Sketch006")
sketch7.AttachmentSupport = (doc.getObject("XY_Plane006"), [""])
sketch7.MapMode = "FlatFace"
sketch7.addGeometry([
    Part.LineSegment(App.Vector(20.3, 17.1, 0), App.Vector(15.5, 13.1, 0)),  # 0
    Part.ArcOfCircle(Part.Circle(App.Vector(17.4, 10.8, 0), App.Vector(0, 0, 1), 3), math.radians(130), math.radians(212)),  # 1
    Part.ArcOfCircle(Part.Circle(App.Vector(0, 0, 0), App.Vector(0, 0, 1), 17.5), math.radians(13.33), math.radians(31.67)),  # 2
    Part.ArcOfCircle(Part.Circle(App.Vector(19.9, 4.7, 0), App.Vector(0, 0, 1), 3), math.radians(-167), math.radians(-85)),  # 3
    Part.LineSegment(App.Vector(20.2, 1.7, 0), App.Vector(26.4, 2.3, 0)),  # 4
    Part.ArcOfCircle(Part.Circle(App.Vector(26.2, 5.3, 0), App.Vector(0, 0, 1), 3), math.radians(-85), math.radians(11)),  # 5
    Part.ArcOfCircle(Part.Circle(App.Vector(0, 0, 0), App.Vector(0, 0, 1), 29.7), math.radians(11), math.radians(34)),  # 6
    Part.ArcOfCircle(Part.Circle(App.Vector(22.2, 14.8, 0), App.Vector(0, 0, 1), 3), math.radians(34), math.radians(130)),  # 7
], False)
sketch7.addConstraint([
    Sketcher.Constraint("Tangent", 0, 2, 1, 1),
    Sketcher.Constraint("Tangent", 1, 2, 2, 2),
    Sketcher.Constraint("Tangent", 2, 1, 3, 1),
    Sketcher.Constraint("Tangent", 3, 2, 4, 1),
    Sketcher.Constraint("Tangent", 4, 2, 5, 1),
    Sketcher.Constraint("Tangent", 5, 2, 6, 1),
    Sketcher.Constraint("Tangent", 6, 2, 7, 1),
    Sketcher.Constraint("Tangent", 7, 2, 0, 1),
    Sketcher.Constraint("Coincident", 2, 3, -1, 1),
    Sketcher.Constraint("Coincident", 6, 3, -1, 1),
    Sketcher.Constraint("Equal", 1, 3),
    Sketcher.Constraint("Equal", 3, 5),
    Sketcher.Constraint("Equal", 5, 7),
    Sketcher.Constraint("Equal", 0, 4),
    Sketcher.Constraint("Radius", 1, 3.0),
    Sketcher.Constraint("Radius", 2, 17.5),
    Sketcher.Constraint("Radius", 6, 29.685),
    Sketcher.Constraint("DistanceY", 5, 3, 0, 2, 7.796001),
    Sketcher.Constraint("DistanceY", 1, 2, 7, 2, 7.885999),
    Sketcher.Constraint("DistanceY", -1, 1, 2, 1, 4.035402),
])
sketch7.setExpression("Constraints[14]", "Params.sketch7_radius")
sketch7.setExpression("Constraints[15]", "Params.sketch7_radius2")
pad7 = body7.newObject("PartDesign::Pad", "Pad006")
pad7.Profile = sketch7
pad7.setExpression("Length", "Params.pad7_length")
body8 = doc.addObject("PartDesign::Body", "Body007")

# Sketch on XY plane
sketch8 = body8.newObject("Sketcher::SketchObject", "Sketch007")
sketch8.AttachmentSupport = (doc.getObject("XY_Plane007"), [""])
sketch8.MapMode = "FlatFace"
sketch8.addGeometry([
    Part.LineSegment(App.Vector(26.4, -2.3, 0), App.Vector(20.2, -1.7, 0)),  # 0
    Part.ArcOfCircle(Part.Circle(App.Vector(19.9, -4.7, 0), App.Vector(0, 0, 1), 3), math.radians(85), math.radians(167)),  # 1
    Part.ArcOfCircle(Part.Circle(App.Vector(0, 0, 0), App.Vector(0, 0, 1), 17.5), math.radians(-31.67), math.radians(-13.33)),  # 2
    Part.ArcOfCircle(Part.Circle(App.Vector(17.4, -10.8, 0), App.Vector(0, 0, 1), 3), math.radians(148), math.radians(230)),  # 3
    Part.LineSegment(App.Vector(15.5, -13.1, 0), App.Vector(20.3, -17.1, 0)),  # 4
    Part.ArcOfCircle(Part.Circle(App.Vector(22.2, -14.8, 0), App.Vector(0, 0, 1), 3), math.radians(-130), math.radians(-34)),  # 5
    Part.ArcOfCircle(Part.Circle(App.Vector(0, 0, 0), App.Vector(0, 0, 1), 29.7), math.radians(-34), math.radians(-11)),  # 6
    Part.ArcOfCircle(Part.Circle(App.Vector(26.2, -5.3, 0), App.Vector(0, 0, 1), 3), math.radians(-11), math.radians(85)),  # 7
], False)
sketch8.addConstraint([
    Sketcher.Constraint("Tangent", 0, 2, 1, 1),
    Sketcher.Constraint("Tangent", 1, 2, 2, 2),
    Sketcher.Constraint("Tangent", 2, 1, 3, 1),
    Sketcher.Constraint("Tangent", 3, 2, 4, 1),
    Sketcher.Constraint("Tangent", 4, 2, 5, 1),
    Sketcher.Constraint("Tangent", 5, 2, 6, 1),
    Sketcher.Constraint("Tangent", 6, 2, 7, 1),
    Sketcher.Constraint("Tangent", 7, 2, 0, 1),
    Sketcher.Constraint("Coincident", 2, 3, -1, 1),
    Sketcher.Constraint("Coincident", 6, 3, -1, 1),
    Sketcher.Constraint("Equal", 1, 3),
    Sketcher.Constraint("Equal", 3, 5),
    Sketcher.Constraint("Equal", 5, 7),
    Sketcher.Constraint("Equal", 0, 4),
    Sketcher.Constraint("Radius", 1, 3.0),
    Sketcher.Constraint("Radius", 2, 17.5),
    Sketcher.Constraint("Radius", 6, 29.685),
    Sketcher.Constraint("DistanceY", 4, 2, 2, 1, 7.885999),
    Sketcher.Constraint("DistanceY", 1, 2, -1, 1, 4.035402),
    Sketcher.Constraint("DistanceY", 6, 2, 1, 3, 1.126099),
])
sketch8.setExpression("Constraints[14]", "Params.sketch8_radius")
sketch8.setExpression("Constraints[15]", "Params.sketch8_radius2")
pad8 = body8.newObject("PartDesign::Pad", "Pad007")
pad8.Profile = sketch8
pad8.setExpression("Length", "Params.pad8_length")
body.AllowCompound = True
doc.recompute()

boolean = body.newObject("PartDesign::Boolean", "Boolean")
boolean.Type = "Fuse"
boolean.addObjects([body2])
doc.recompute()

boolean2 = body.newObject("PartDesign::Boolean", "Boolean001")
boolean2.Type = "Fuse"
boolean2.addObjects([body3])
doc.recompute()

boolean3 = body.newObject("PartDesign::Boolean", "Boolean002")
boolean3.Type = "Fuse"
boolean3.addObjects([body4])
doc.recompute()

boolean4 = body.newObject("PartDesign::Boolean", "Boolean003")
boolean4.Type = "Fuse"
boolean4.addObjects([body5])
doc.recompute()

boolean5 = body.newObject("PartDesign::Boolean", "Boolean004")
boolean5.Type = "Fuse"
boolean5.addObjects([body6])
doc.recompute()

boolean6 = body.newObject("PartDesign::Boolean", "Boolean005")
boolean6.Type = "Fuse"
boolean6.addObjects([body7])
doc.recompute()

boolean7 = body.newObject("PartDesign::Boolean", "Boolean006")
boolean7.Type = "Fuse"
boolean7.addObjects([body8])

# Sketch on XZ plane
sketch9 = body.newObject("Sketcher::SketchObject", "Sketch008")
sketch9.AttachmentSupport = (doc.getObject("XZ_Plane"), [""])
sketch9.MapMode = "FlatFace"
sketch9.addGeometry([
    Part.LineSegment(App.Vector(32, 25, 0), App.Vector(18, 25, 0)),  # 0
    Part.LineSegment(App.Vector(18, 25, 0), App.Vector(18, 38, 0)),  # 1
    Part.ArcOfCircle(Part.Circle(App.Vector(0, 38, 0), App.Vector(0, 0, 1), 17), math.radians(0), math.radians(90)),  # 2
    Part.LineSegment(App.Vector(0, 55, 0), App.Vector(0, 65, 0)),  # 3
    Part.LineSegment(App.Vector(0, 65, 0), App.Vector(32, 65, 0)),  # 4
    Part.LineSegment(App.Vector(32, 65, 0), App.Vector(32, 25, 0)),  # 5
], False)
sketch9.addConstraint([
    Sketcher.Constraint("Coincident", 0, 2, 1, 1),
    Sketcher.Constraint("Tangent", 1, 2, 2, 1),
    Sketcher.Constraint("Coincident", 2, 2, 3, 1),
    Sketcher.Constraint("Coincident", 3, 2, 4, 1),
    Sketcher.Constraint("Coincident", 4, 2, 5, 1),
    Sketcher.Constraint("Coincident", 5, 2, 0, 1),
    Sketcher.Constraint("Horizontal", 0),
    Sketcher.Constraint("Vertical", 1),
    Sketcher.Constraint("Vertical", 3),
    Sketcher.Constraint("Horizontal", 4),
    Sketcher.Constraint("Vertical", 5),
    Sketcher.Constraint("PointOnObject", 2, 3, -2),
    Sketcher.Constraint("PointOnObject", 2, 2, -2),
    Sketcher.Constraint("Radius", 2, 17.5),
    Sketcher.Constraint("DistanceY", 5, 2, 5, 1, 40.0),
    Sketcher.Constraint("DistanceY", -1, 1, 0, 2, 25.0),
    Sketcher.Constraint("DistanceX", 0, 2, 0, 1, 14.185),
    Sketcher.Constraint("DistanceY", 1, 1, 1, 2, 12.702941),
])
sketch9.setExpression("Constraints[13]", "Params.sketch9_radius")
sketch9.setExpression("Constraints[14]", "Params.sketch9_height")
revolution = body.newObject("PartDesign::Revolution", "Revolution")
revolution.Profile = sketch9
revolution.ReferenceAxis = (sketch9, ["V_Axis"])
revolution.setExpression("Angle", "Params.revolution_angle")

# Sketch on XY plane
sketch10 = body.newObject("Sketcher::SketchObject", "Sketch009")
sketch10.AttachmentSupport = (doc.getObject("XY_Plane"), [""])
sketch10.MapMode = "FlatFace"
sketch10.AttachmentOffset = App.Placement(App.Vector(0, 0, 28), App.Rotation())
sketch10.addGeometry([
    Part.Circle(App.Vector(0, 0, 0), App.Vector(0, 0, 1), 33),
    Part.Circle(App.Vector(0, 0, 0), App.Vector(0, 0, 1), 32),
], False)
sketch10.addConstraint([
    Sketcher.Constraint("Coincident", 0, 3, -1, 1),
    Sketcher.Constraint("Coincident", 1, 3, -1, 1),
    Sketcher.Constraint("Diameter", 0, 66.0),
    Sketcher.Constraint("Diameter", 1, 63.37),
])
sketch10.setExpression("Constraints[2]", "Params.sketch10_diameter")
sketch10.setExpression("Constraints[3]", "Params.sketch10_diameter2")
pad9 = body.newObject("PartDesign::Pad", "Pad008")
pad9.Profile = sketch10
pad9.setExpression("Length", "Params.pad9_length")
pad9.Reversed = True

doc.recompute()
